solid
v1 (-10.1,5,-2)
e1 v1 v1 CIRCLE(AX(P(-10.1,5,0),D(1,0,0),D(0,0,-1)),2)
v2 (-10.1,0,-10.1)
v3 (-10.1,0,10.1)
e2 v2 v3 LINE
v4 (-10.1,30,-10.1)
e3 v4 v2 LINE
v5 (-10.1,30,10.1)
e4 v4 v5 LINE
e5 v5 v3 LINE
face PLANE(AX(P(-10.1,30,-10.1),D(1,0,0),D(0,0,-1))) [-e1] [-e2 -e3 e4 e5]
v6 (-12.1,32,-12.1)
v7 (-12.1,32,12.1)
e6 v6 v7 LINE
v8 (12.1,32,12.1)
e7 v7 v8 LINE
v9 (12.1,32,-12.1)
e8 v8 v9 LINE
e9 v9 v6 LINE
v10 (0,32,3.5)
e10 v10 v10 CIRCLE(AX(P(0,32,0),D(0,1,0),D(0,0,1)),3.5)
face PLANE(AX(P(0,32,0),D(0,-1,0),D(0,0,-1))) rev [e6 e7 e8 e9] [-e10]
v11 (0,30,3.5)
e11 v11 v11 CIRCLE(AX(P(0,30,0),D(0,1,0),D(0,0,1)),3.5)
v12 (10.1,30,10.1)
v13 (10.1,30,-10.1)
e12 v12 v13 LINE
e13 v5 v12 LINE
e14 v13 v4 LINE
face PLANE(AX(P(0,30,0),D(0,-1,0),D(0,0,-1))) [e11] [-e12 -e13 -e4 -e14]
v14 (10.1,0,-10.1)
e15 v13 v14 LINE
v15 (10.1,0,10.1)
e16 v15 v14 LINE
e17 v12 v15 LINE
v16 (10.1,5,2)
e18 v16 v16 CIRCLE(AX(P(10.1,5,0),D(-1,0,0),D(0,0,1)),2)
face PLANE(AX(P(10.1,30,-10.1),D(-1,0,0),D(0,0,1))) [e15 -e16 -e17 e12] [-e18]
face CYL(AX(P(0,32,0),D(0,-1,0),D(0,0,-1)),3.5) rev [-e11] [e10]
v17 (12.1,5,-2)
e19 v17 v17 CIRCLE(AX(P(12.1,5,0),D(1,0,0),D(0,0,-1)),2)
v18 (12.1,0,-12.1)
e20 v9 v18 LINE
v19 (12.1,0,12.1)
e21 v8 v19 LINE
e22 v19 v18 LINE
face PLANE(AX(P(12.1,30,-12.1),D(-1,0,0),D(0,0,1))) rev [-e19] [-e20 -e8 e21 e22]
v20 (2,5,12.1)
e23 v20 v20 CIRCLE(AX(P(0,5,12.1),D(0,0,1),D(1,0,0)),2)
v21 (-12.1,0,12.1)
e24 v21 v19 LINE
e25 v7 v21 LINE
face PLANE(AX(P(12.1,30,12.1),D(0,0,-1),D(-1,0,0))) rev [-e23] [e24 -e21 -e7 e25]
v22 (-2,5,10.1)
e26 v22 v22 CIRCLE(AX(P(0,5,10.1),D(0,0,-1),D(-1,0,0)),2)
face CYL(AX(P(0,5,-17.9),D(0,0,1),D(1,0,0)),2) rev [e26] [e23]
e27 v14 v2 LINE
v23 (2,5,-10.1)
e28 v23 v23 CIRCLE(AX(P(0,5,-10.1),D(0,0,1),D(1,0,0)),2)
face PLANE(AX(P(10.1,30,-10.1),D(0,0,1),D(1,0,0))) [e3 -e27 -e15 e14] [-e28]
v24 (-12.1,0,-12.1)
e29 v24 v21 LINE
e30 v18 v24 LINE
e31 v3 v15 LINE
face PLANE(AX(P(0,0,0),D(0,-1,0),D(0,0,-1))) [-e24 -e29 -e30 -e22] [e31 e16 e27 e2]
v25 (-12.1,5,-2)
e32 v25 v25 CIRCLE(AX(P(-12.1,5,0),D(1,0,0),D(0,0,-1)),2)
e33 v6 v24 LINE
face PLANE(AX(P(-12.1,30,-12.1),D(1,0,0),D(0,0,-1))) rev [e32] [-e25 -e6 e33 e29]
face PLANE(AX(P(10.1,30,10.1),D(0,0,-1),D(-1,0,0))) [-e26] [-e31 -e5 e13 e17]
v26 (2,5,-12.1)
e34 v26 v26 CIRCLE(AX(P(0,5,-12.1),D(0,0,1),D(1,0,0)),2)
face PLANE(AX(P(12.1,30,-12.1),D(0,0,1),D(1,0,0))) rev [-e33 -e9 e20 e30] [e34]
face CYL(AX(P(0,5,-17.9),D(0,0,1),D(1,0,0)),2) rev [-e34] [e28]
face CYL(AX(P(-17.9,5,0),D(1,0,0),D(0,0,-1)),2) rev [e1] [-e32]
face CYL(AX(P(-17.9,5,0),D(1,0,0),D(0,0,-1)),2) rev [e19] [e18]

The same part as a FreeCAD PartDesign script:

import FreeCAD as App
import Part
import Sketcher
Q = App.Units.Quantity


def add_polygon(sketch, points):
    """Adds a closed chain of lines whose ends are joined by coincident constraints."""
    first, n = sketch.GeometryCount, len(points)
    for a, b in zip(points, points[1:] + points[:1]):
        sketch.addGeometry(Part.LineSegment(App.Vector(*a, 0), App.Vector(*b, 0)), False)
    for i in range(n):
        sketch.addConstraint(Sketcher.Constraint("Coincident", first + i, 2, first + (i + 1) % n, 1))

doc = App.newDocument("Part")
body = doc.addObject("PartDesign::Body", "Body")

# Sketch on XZ plane
sketch1 = body.newObject("Sketcher::SketchObject", "Sketch")
sketch1.AttachmentSupport = (doc.getObject("XZ_Plane"), [""])
sketch1.MapMode = "FlatFace"
add_polygon(sketch1, [(-12, -12), (-12, 12), (12, 12), (12, -12)])  # lines 0-3
add_polygon(sketch1, [(10, 10), (-10, 10), (-10, -10), (10, -10)])  # lines 4-7
sketch1.addConstraint([
    Sketcher.Constraint("Vertical", 0),
    Sketcher.Constraint("Horizontal", 1),
    Sketcher.Constraint("Vertical", 2),
    Sketcher.Constraint("Horizontal", 3),
    Sketcher.Constraint("Horizontal", 4),
    Sketcher.Constraint("Vertical", 5),
    Sketcher.Constraint("Horizontal", 6),
    Sketcher.Constraint("Vertical", 7),
    Sketcher.Constraint("Symmetric", 0, 2, 2, 2, -1, 1),
    Sketcher.Constraint("Symmetric", 4, 2, 6, 2, -1, 1),
    Sketcher.Constraint("Equal", 3, 0),
    Sketcher.Constraint("Equal", 6, 5),
    Sketcher.Constraint("DistanceX", 1, 1, 1, 2, Q("24.2 mm")),
    Sketcher.Constraint("DistanceX", 4, 2, 4, 1, Q("20.2 mm")),
])
pad1 = body.newObject("PartDesign::Pad", "Pad")
pad1.Profile = sketch1
pad1.Length = 30
pad1.Reversed = True

# Sketch on XY plane
sketch2 = body.newObject("Sketcher::SketchObject", "Sketch001")
sketch2.AttachmentSupport = (doc.getObject("XY_Plane"), [""])
sketch2.MapMode = "FlatFace"
sketch2.AttachmentOffset = App.Placement(App.Vector(0, 0, 12.1), App.Rotation())
sketch2.addGeometry(Part.Circle(App.Vector(0, 5, 0), App.Vector(0, 0, 1), 2), False)
sketch2.addConstraint([
    Sketcher.Constraint("PointOnObject", 0, 3, -2),
    Sketcher.Constraint("Diameter", 0, Q("4 mm")),
    Sketcher.Constraint("DistanceY", -1, 1, 0, 3, Q("5 mm")),
])
pocket1 = body.newObject("PartDesign::Pocket", "Pocket")
pocket1.Profile = sketch2
pocket1.Length = 30

# Sketch on YZ plane
sketch3 = body.newObject("Sketcher::SketchObject", "Sketch002")
sketch3.AttachmentSupport = (doc.getObject("YZ_Plane"), [""])
sketch3.MapMode = "FlatFace"
sketch3.AttachmentOffset = App.Placement(App.Vector(0, 0, 12.1), App.Rotation())
sketch3.addGeometry(Part.Circle(App.Vector(5, 0, 0), App.Vector(0, 0, 1), 2), False)
sketch3.addConstraint([
    Sketcher.Constraint("PointOnObject", 0, 3, -1),
    Sketcher.Constraint("Diameter", 0, Q("4 mm")),
    Sketcher.Constraint("DistanceX", -1, 1, 0, 3, Q("5 mm")),
])
pocket2 = body.newObject("PartDesign::Pocket", "Pocket001")
pocket2.Profile = sketch3
pocket2.Length = 30

# Sketch on XZ plane
sketch4 = body.newObject("Sketcher::SketchObject", "Sketch003")
sketch4.AttachmentSupport = (doc.getObject("XZ_Plane"), [""])
sketch4.MapMode = "FlatFace"
sketch4.AttachmentOffset = App.Placement(App.Vector(0, 0, -30), App.Rotation())
add_polygon(sketch4, [(-12.1, -12.1), (-12.1, 12.1), (12.1, 12.1), (12.1, -12.1)])  # lines 0-3
sketch4.addGeometry(Part.Circle(App.Vector(0, 0, 0), App.Vector(0, 0, 1), 3.5), False)  # 4
sketch4.addConstraint([
    Sketcher.Constraint("Vertical", 0),
    Sketcher.Constraint("Horizontal", 1),
    Sketcher.Constraint("Vertical", 2),
    Sketcher.Constraint("Horizontal", 3),
    Sketcher.Constraint("Coincident", 4, 3, -1, 1),
    Sketcher.Constraint("Symmetric", 0, 2, 2, 2, -1, 1),
    Sketcher.Constraint("Equal", 3, 0),
    Sketcher.Constraint("Diameter", 4, Q("7 mm")),
    Sketcher.Constraint("DistanceX", 1, 1, 1, 2, Q("24.2 mm")),
])
pad2 = body.newObject("PartDesign::Pad", "Pad001")
pad2.Profile = sketch4
pad2.Length = 2
pad2.Reversed = True

doc.recompute()
